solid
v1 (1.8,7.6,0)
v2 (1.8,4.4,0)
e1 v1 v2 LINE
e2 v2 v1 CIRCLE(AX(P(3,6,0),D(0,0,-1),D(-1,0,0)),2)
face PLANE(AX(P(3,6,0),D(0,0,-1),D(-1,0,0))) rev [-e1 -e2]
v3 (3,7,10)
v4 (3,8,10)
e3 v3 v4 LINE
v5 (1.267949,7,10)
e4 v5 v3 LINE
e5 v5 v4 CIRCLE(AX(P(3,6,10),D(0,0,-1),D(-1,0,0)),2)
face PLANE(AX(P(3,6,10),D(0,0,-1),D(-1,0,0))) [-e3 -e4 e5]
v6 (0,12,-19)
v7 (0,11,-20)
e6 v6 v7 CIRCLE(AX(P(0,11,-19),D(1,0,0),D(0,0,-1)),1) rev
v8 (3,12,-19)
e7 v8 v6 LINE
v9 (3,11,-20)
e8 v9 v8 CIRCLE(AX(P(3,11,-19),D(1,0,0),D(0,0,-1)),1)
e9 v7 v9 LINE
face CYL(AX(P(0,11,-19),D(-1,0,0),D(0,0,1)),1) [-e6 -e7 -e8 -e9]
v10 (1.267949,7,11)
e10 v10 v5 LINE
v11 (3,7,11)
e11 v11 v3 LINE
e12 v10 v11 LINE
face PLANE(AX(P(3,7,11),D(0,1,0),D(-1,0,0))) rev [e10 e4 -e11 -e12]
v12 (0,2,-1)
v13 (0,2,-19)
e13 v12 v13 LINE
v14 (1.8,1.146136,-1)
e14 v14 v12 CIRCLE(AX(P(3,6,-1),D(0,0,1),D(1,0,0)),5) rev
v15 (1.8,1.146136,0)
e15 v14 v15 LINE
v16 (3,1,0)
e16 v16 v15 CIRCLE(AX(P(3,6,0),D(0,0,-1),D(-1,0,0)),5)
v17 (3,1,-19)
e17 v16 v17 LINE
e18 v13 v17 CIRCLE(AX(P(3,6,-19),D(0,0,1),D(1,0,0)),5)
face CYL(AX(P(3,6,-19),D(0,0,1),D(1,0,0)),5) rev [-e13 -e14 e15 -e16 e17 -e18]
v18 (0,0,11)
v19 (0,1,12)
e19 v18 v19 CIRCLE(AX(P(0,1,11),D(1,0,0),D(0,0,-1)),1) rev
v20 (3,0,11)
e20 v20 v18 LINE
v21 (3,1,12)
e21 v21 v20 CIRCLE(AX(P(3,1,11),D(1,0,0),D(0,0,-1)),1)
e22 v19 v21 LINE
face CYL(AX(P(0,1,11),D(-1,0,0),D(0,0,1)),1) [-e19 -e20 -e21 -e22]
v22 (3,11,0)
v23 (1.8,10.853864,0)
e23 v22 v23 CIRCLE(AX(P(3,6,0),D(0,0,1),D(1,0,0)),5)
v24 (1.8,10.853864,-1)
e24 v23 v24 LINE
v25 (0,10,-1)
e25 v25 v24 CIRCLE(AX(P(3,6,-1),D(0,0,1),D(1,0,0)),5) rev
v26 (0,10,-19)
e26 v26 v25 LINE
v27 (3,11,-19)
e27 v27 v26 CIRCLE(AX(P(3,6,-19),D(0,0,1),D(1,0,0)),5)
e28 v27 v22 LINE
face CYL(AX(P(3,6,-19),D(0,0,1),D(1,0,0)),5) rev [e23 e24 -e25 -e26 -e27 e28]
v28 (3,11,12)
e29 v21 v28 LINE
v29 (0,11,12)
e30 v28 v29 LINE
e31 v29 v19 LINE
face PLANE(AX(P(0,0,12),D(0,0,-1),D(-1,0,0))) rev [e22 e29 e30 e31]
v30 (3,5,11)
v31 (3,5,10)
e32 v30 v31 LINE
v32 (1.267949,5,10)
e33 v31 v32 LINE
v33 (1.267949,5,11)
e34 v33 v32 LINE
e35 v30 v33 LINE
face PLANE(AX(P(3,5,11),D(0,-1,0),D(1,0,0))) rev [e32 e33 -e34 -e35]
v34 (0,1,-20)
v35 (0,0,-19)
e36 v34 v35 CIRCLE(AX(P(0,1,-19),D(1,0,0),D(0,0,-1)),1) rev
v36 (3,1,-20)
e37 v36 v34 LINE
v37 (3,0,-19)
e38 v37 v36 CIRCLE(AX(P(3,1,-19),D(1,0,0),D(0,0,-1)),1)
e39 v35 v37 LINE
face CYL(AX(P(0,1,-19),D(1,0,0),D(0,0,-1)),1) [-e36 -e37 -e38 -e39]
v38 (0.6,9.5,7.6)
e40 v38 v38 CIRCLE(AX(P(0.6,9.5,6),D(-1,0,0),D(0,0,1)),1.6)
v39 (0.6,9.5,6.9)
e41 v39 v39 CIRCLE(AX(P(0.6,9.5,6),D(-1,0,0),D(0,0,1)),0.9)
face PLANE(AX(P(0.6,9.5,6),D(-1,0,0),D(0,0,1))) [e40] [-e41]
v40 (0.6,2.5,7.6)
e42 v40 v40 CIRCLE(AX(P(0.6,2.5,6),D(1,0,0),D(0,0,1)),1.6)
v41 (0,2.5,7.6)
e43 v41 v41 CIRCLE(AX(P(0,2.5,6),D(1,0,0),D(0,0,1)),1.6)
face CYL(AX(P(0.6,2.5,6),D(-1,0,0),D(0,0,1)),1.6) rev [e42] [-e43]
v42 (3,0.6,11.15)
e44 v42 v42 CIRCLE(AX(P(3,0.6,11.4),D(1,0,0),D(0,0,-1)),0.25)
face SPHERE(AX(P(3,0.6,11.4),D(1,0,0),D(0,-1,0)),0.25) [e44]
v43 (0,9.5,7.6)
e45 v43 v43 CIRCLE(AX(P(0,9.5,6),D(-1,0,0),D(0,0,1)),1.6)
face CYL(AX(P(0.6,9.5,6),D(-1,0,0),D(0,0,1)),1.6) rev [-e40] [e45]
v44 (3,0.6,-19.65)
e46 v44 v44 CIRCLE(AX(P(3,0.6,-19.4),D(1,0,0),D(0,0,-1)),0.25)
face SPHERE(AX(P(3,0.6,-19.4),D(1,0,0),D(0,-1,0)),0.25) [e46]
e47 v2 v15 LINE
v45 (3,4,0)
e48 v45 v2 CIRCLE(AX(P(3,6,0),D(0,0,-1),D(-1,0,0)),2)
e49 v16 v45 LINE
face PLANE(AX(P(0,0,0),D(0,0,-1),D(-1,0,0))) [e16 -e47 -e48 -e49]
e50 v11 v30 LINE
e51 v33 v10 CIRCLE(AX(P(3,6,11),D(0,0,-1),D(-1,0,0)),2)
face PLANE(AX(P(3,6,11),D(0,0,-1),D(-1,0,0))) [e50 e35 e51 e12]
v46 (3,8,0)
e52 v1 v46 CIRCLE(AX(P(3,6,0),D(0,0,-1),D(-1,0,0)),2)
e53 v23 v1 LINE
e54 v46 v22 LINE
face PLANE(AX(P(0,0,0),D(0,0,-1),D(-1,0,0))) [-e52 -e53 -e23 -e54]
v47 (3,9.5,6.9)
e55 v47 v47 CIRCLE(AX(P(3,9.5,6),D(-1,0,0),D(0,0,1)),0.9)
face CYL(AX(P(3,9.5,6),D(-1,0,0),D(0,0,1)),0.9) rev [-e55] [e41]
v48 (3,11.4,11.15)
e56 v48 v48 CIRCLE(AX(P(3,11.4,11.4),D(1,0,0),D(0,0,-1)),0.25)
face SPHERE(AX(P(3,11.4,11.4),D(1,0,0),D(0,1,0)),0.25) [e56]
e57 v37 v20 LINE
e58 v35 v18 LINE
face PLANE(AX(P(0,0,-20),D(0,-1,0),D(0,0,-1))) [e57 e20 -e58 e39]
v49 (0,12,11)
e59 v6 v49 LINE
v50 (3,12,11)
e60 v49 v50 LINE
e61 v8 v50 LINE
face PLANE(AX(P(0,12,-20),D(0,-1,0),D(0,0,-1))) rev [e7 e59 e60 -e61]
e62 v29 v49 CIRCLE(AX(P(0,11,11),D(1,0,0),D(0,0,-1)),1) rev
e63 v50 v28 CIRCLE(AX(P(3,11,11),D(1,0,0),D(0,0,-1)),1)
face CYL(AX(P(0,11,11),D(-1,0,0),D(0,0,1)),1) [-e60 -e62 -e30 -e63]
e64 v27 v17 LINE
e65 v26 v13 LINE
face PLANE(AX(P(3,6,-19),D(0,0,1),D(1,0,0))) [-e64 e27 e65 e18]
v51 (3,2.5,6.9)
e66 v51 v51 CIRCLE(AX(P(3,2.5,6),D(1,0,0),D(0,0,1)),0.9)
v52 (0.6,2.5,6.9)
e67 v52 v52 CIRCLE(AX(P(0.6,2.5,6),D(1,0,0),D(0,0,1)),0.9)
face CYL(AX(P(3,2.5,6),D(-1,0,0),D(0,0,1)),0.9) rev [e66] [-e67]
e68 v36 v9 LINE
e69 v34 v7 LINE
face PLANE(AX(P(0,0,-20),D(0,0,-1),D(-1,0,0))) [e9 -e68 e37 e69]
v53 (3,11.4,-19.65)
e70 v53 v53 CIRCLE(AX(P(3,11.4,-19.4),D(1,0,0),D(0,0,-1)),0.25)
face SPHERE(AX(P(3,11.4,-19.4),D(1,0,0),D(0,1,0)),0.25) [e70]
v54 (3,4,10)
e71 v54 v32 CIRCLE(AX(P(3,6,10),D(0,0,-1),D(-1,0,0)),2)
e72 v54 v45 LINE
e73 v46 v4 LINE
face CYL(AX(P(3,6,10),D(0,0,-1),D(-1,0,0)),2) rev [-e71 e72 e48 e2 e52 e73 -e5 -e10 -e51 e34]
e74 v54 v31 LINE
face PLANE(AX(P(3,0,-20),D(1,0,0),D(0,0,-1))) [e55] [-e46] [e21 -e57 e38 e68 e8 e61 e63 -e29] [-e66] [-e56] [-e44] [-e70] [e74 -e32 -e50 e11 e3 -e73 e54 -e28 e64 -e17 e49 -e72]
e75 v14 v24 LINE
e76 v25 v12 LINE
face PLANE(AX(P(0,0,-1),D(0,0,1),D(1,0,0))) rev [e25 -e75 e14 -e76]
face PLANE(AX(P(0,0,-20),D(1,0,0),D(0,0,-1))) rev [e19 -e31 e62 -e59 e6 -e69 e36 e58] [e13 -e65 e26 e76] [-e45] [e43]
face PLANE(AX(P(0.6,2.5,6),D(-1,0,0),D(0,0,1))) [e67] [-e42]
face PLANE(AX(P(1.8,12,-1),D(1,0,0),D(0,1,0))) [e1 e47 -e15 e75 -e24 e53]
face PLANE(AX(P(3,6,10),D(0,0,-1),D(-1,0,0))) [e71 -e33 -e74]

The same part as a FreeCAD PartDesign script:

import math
import FreeCAD as App
import Part
import Sketcher
from FreeCAD import Vector


def edges_at(feature, points):
    """Names of the edges that pass closest to the given points."""
    edges = feature.Shape.Edges
    near = lambda p: min(range(len(edges)), key=lambda i: edges[i].distToShape(Part.Vertex(*p))[0])
    return sorted({f"Edge{near(p) + 1}" for p in points})


def add_polygon(sketch, points):
    """Adds a closed chain of lines whose ends are joined by coincident constraints."""
    first, n = sketch.GeometryCount, len(points)
    for a, b in zip(points, points[1:] + points[:1]):
        sketch.addGeometry(Part.LineSegment(App.Vector(*a, 0), App.Vector(*b, 0)), False)
    for i in range(n):
        sketch.addConstraint(Sketcher.Constraint("Coincident", first + i, 2, first + (i + 1) % n, 1))

doc = App.newDocument("Part")
params = doc.addObject("Spreadsheet::Sheet", "Params")
for row, (alias, value) in enumerate([
    ("sketch1_width", "3 mm"),
    ("sketch1_height", "12 mm"),
    ("pad1_length", "20 mm"),
    ("sketch2_diameter", "10 mm"),
    ("pocket1_length", "19 mm"),
    ("sketch3_width", "3 mm"),
    ("sketch3_height", "12 mm"),
    ("pad2_length", "12 mm"),
    ("sketch4_height", "12 mm"),
    ("sketch4_width", "1.8 mm"),
    ("pad3_length", "1 mm"),
    ("sketch5_diameter", "4 mm"),
    ("pocket2_length", "10 mm"),
    ("sketch6_radius", "2 mm"),
    ("sketch6_height", "2 mm"),
    ("pocket3_length", "1 mm"),
    ("sketch7_diameter", "3.2 mm"),
    ("pocket4_length", "0.6 mm"),
    ("sketch8_diameter", "1.8 mm"),
    ("fillet_radius", "1 mm"),
    ("sketch9_radius", "0.25 mm"),
    ("revolution_angle", "360 deg"),
    ("sketch10_radius", "0.25 mm"),
    ("revolution2_angle", "360 deg"),
], start=1):
    params.set(f"A{row}", alias)
    params.set(f"B{row}", "=" + value)
    params.setAlias(f"B{row}", alias)

body = doc.addObject("PartDesign::Body", "Body")

# Sketch on XY plane
sketch1 = body.newObject("Sketcher::SketchObject", "Sketch")
sketch1.AttachmentSupport = (doc.getObject("XY_Plane"), [""])
sketch1.MapMode = "FlatFace"
add_polygon(sketch1, [(0, 12), (0, 0), (3, 0), (3, 12)])  # lines 0-3
sketch1.addConstraint(Sketcher.Constraint("Vertical", 0))
sketch1.addConstraint(Sketcher.Constraint("Horizontal", 1))
sketch1.addConstraint(Sketcher.Constraint("Vertical", 2))
sketch1.addConstraint(Sketcher.Constraint("Horizontal", 3))
sketch1.addConstraint(Sketcher.Constraint("Coincident", 0, 2, -1, 1))
sketch1.addConstraint(Sketcher.Constraint("DistanceX", 1, 1, 1, 2, 3.0))
sketch1.addConstraint(Sketcher.Constraint("DistanceY", 0, 2, 0, 1, 12.0))
sketch1.setExpression("Constraints[9]", "Params.sketch1_width")
sketch1.setExpression("Constraints[10]", "Params.sketch1_height")
pad1 = body.newObject("PartDesign::Pad", "Pad")
pad1.Profile = sketch1
pad1.setExpression("Length", "Params.pad1_length")
pad1.Reversed = True

# Sketch on XY plane
sketch2 = body.newObject("Sketcher::SketchObject", "Sketch001")
sketch2.AttachmentSupport = (doc.getObject("XY_Plane"), [""])
sketch2.MapMode = "FlatFace"
sketch2.addGeometry(Part.Circle(Vector(3, 6, 0), Vector(0, 0, 1), 5), False)
sketch2.addConstraint(Sketcher.Constraint("Diameter", 0, 10.0))
sketch2.addConstraint(Sketcher.Constraint("DistanceX", -1, 1, 0, 3, 3.0))
sketch2.addConstraint(Sketcher.Constraint("DistanceY", -1, 1, 0, 3, 6.0))
sketch2.setExpression("Constraints[0]", "Params.sketch2_diameter")
pocket1 = body.newObject("PartDesign::Pocket", "Pocket")
pocket1.Profile = sketch2
pocket1.setExpression("Length", "Params.pocket1_length")

# Sketch on XY plane
sketch3 = body.newObject("Sketcher::SketchObject", "Sketch002")
sketch3.AttachmentSupport = (doc.getObject("XY_Plane"), [""])
sketch3.MapMode = "FlatFace"
add_polygon(sketch3, [(0, 12), (0, 0), (3, 0), (3, 12)])  # lines 0-3
sketch3.addConstraint(Sketcher.Constraint("Vertical", 0))
sketch3.addConstraint(Sketcher.Constraint("Horizontal", 1))
sketch3.addConstraint(Sketcher.Constraint("Vertical", 2))
sketch3.addConstraint(Sketcher.Constraint("Horizontal", 3))
sketch3.addConstraint(Sketcher.Constraint("Coincident", 0, 2, -1, 1))
sketch3.addConstraint(Sketcher.Constraint("DistanceX", 1, 1, 1, 2, 3.0))
sketch3.addConstraint(Sketcher.Constraint("DistanceY", 0, 2, 0, 1, 12.0))
sketch3.setExpression("Constraints[9]", "Params.sketch3_width")
sketch3.setExpression("Constraints[10]", "Params.sketch3_height")
pad2 = body.newObject("PartDesign::Pad", "Pad001")
pad2.Profile = sketch3
pad2.setExpression("Length", "Params.pad2_length")

# Sketch on XY plane
sketch4 = body.newObject("Sketcher::SketchObject", "Sketch003")
sketch4.AttachmentSupport = (doc.getObject("XY_Plane"), [""])
sketch4.MapMode = "FlatFace"
add_polygon(sketch4, [(0, 12), (0, 0), (1.8, 0), (1.8, 12)])  # lines 0-3
sketch4.addConstraint(Sketcher.Constraint("Vertical", 0))
sketch4.addConstraint(Sketcher.Constraint("Horizontal", 1))
sketch4.addConstraint(Sketcher.Constraint("Vertical", 2))
sketch4.addConstraint(Sketcher.Constraint("Horizontal", 3))
sketch4.addConstraint(Sketcher.Constraint("Coincident", 0, 2, -1, 1))
sketch4.addConstraint(Sketcher.Constraint("DistanceY", 0, 2, 0, 1, 12.0))
sketch4.addConstraint(Sketcher.Constraint("DistanceX", 1, 1, 1, 2, 1.8))
sketch4.setExpression("Constraints[9]", "Params.sketch4_height")
sketch4.setExpression("Constraints[10]", "Params.sketch4_width")
pad3 = body.newObject("PartDesign::Pad", "Pad002")
pad3.Profile = sketch4
pad3.setExpression("Length", "Params.pad3_length")
pad3.Reversed = True

# Sketch on XY plane
sketch5 = body.newObject("Sketcher::SketchObject", "Sketch004")
sketch5.AttachmentSupport = (doc.getObject("XY_Plane"), [""])
sketch5.MapMode = "FlatFace"
sketch5.addGeometry(Part.Circle(Vector(3, 6, 0), Vector(0, 0, 1), 2), False)
sketch5.addConstraint(Sketcher.Constraint("Diameter", 0, 4.0))
sketch5.addConstraint(Sketcher.Constraint("DistanceX", -1, 1, 0, 3, 3.0))
sketch5.addConstraint(Sketcher.Constraint("DistanceY", -1, 1, 0, 3, 6.0))
sketch5.setExpression("Constraints[0]", "Params.sketch5_diameter")
pocket2 = body.newObject("PartDesign::Pocket", "Pocket001")
pocket2.Profile = sketch5
pocket2.setExpression("Length", "Params.pocket2_length")
pocket2.Reversed = True

# Sketch on XY plane
sketch6 = body.newObject("Sketcher::SketchObject", "Sketch005")
sketch6.AttachmentSupport = (doc.getObject("XY_Plane"), [""])
sketch6.MapMode = "FlatFace"
sketch6.AttachmentOffset = App.Placement(Vector(0, 0, 10), App.Rotation())
sketch6.addGeometry(Part.LineSegment(Vector(1.3, 7, 0), Vector(3, 7, 0)), False)
sketch6.addGeometry(Part.LineSegment(Vector(3, 7, 0), Vector(3, 5, 0)), False)
sketch6.addGeometry(Part.LineSegment(Vector(3, 5, 0), Vector(1.3, 5, 0)), False)
sketch6.addGeometry(Part.ArcOfCircle(Part.Circle(Vector(3, 6, 0), Vector(0, 0, 1), 2), math.radians(150), math.radians(210)), False)
sketch6.addConstraint(Sketcher.Constraint("Coincident", 0, 2, 1, 1))
sketch6.addConstraint(Sketcher.Constraint("Coincident", 1, 2, 2, 1))
sketch6.addConstraint(Sketcher.Constraint("Coincident", 2, 2, 3, 2))
sketch6.addConstraint(Sketcher.Constraint("Coincident", 3, 1, 0, 1))
sketch6.addConstraint(Sketcher.Constraint("Horizontal", 0))
sketch6.addConstraint(Sketcher.Constraint("Vertical", 1))
sketch6.addConstraint(Sketcher.Constraint("Horizontal", 2))
sketch6.addConstraint(Sketcher.Constraint("Vertical", 3, 3, 0, 2))
sketch6.addConstraint(Sketcher.Constraint("Vertical", 2, 2, 3, 1))
sketch6.addConstraint(Sketcher.Constraint("Radius", 3, 2.0))
sketch6.addConstraint(Sketcher.Constraint("DistanceY", 1, 2, 1, 1, 2.0))
sketch6.addConstraint(Sketcher.Constraint("DistanceX", -1, 1, 3, 3, 3.0))
sketch6.addConstraint(Sketcher.Constraint("DistanceY", -1, 1, 3, 3, 6.0))
sketch6.setExpression("Constraints[9]", "Params.sketch6_radius")
sketch6.setExpression("Constraints[10]", "Params.sketch6_height")
pocket3 = body.newObject("PartDesign::Pocket", "Pocket002")
pocket3.Profile = sketch6
pocket3.setExpression("Length", "Params.pocket3_length")
pocket3.Reversed = True

# Sketch on YZ plane
sketch7 = body.newObject("Sketcher::SketchObject", "Sketch006")
sketch7.AttachmentSupport = (doc.getObject("YZ_Plane"), [""])
sketch7.MapMode = "FlatFace"
sketch7.addGeometry(Part.Circle(Vector(9.5, 6, 0), Vector(0, 0, 1), 1.6), False)
sketch7.addConstraint(Sketcher.Constraint("Diameter", 0, 3.2))
sketch7.addConstraint(Sketcher.Constraint("DistanceY", -1, 1, 0, 3, 6.0))
sketch7.addConstraint(Sketcher.Constraint("DistanceX", -1, 1, 0, 3, 9.5))
sketch7.setExpression("Constraints[0]", "Params.sketch7_diameter")
pocket4 = body.newObject("PartDesign::Pocket", "Pocket003")
pocket4.Profile = sketch7
pocket4.setExpression("Length", "Params.pocket4_length")
pocket4.Reversed = True

# Sketch on YZ plane
sketch8 = body.newObject("Sketcher::SketchObject", "Sketch007")
sketch8.AttachmentSupport = (doc.getObject("YZ_Plane"), [""])
sketch8.MapMode = "FlatFace"
sketch8.AttachmentOffset = App.Placement(Vector(0, 0, 0.6), App.Rotation())
sketch8.addGeometry(Part.Circle(Vector(9.5, 6, 0), Vector(0, 0, 1), 0.9), False)
sketch8.addConstraint(Sketcher.Constraint("Diameter", 0, 1.8))
sketch8.addConstraint(Sketcher.Constraint("DistanceY", -1, 1, 0, 3, 6.0))
sketch8.addConstraint(Sketcher.Constraint("DistanceX", -1, 1, 0, 3, 9.5))
sketch8.setExpression("Constraints[0]", "Params.sketch8_diameter")
pocket5 = body.newObject("PartDesign::Pocket", "Pocket004")
pocket5.Profile = sketch8
pocket5.Type = "ThroughAll"
pocket5.Reversed = True
doc.recompute()

datumplane = body.newObject("PartDesign::Plane", "DatumPlane")
datumplane.AttachmentSupport = (doc.getObject("XZ_Plane"), [""])
datumplane.MapMode = "FlatFace"
datumplane.AttachmentOffset = App.Placement(Vector(0, 0, -6), App.Rotation())
mirrored = body.newObject("PartDesign::Mirrored", "Mirrored")
mirrored.Originals = [pocket4, pocket5]
mirrored.MirrorPlane = (datumplane, [""])
body.Tip = mirrored
doc.recompute()

fillet = body.newObject("PartDesign::Fillet", "Fillet")
fillet.Base = (mirrored, edges_at(mirrored, [
    (1.5, 0, -20),
    (1.5, 12, 12),
    (1.5, 0, 12),
    (1.5, 12, -20),
]))
fillet.setExpression("Radius", "Params.fillet_radius")

# Sketch on XY plane
sketch9 = body.newObject("Sketcher::SketchObject", "Sketch008")
sketch9.AttachmentSupport = (doc.getObject("XY_Plane"), [""])
sketch9.MapMode = "FlatFace"
sketch9.AttachmentOffset = App.Placement(Vector(0, 0, -19.4), App.Rotation())
sketch9.addGeometry(Part.LineSegment(Vector(3, 11.4, 0), Vector(3.25, 11.4, 0)), False)
sketch9.addGeometry(Part.ArcOfCircle(Part.Circle(Vector(3, 11.4, 0), Vector(0, 0, 1), 0.25), math.radians(-90), math.radians(0)), False)
sketch9.addGeometry(Part.LineSegment(Vector(3, 11.15, 0), Vector(3, 11.4, 0)), False)
sketch9.addGeometry(Part.LineSegment(Vector(3.25, 11.4, 0), Vector(3, 11.4, 0)), True)  # axis
sketch9.addConstraint(Sketcher.Constraint("Coincident", 0, 2, 1, 2))
sketch9.addConstraint(Sketcher.Constraint("Coincident", 1, 1, 2, 1))
sketch9.addConstraint(Sketcher.Constraint("Coincident", 2, 2, 0, 1))
sketch9.addConstraint(Sketcher.Constraint("Horizontal", 0))
sketch9.addConstraint(Sketcher.Constraint("Vertical", 2))
sketch9.addConstraint(Sketcher.Constraint("Horizontal", 3))
sketch9.addConstraint(Sketcher.Constraint("Coincident", 2, 2, 1, 3))
sketch9.addConstraint(Sketcher.Constraint("Coincident", 3, 1, 0, 2))
sketch9.addConstraint(Sketcher.Constraint("Vertical", 1, 1, 3, 2))
sketch9.addConstraint(Sketcher.Constraint("Radius", 1, 0.25))
sketch9.addConstraint(Sketcher.Constraint("DistanceX", -1, 1, 1, 3, 3.0))
sketch9.addConstraint(Sketcher.Constraint("DistanceY", -1, 1, 1, 3, 11.4))
sketch9.setExpression("Constraints[9]", "Params.sketch9_radius")
revolution = body.newObject("PartDesign::Revolution", "Revolution")
revolution.Profile = sketch9
revolution.ReferenceAxis = (sketch9, ["Axis0"])
revolution.setExpression("Angle", "Params.revolution_angle")
doc.recompute()

datumplane2 = body.newObject("PartDesign::Plane", "DatumPlane001")
datumplane2.AttachmentSupport = (doc.getObject("XZ_Plane"), [""])
datumplane2.MapMode = "FlatFace"
datumplane2.AttachmentOffset = App.Placement(Vector(0, 0, -6), App.Rotation())
mirrored2 = body.newObject("PartDesign::Mirrored", "Mirrored001")
mirrored2.Originals = [revolution]
mirrored2.MirrorPlane = (datumplane2, [""])
body.Tip = mirrored2
doc.recompute()

datumplane3 = body.newObject("PartDesign::Plane", "DatumPlane002")
datumplane3.AttachmentSupport = (doc.getObject("XY_Plane"), [""])
datumplane3.MapMode = "FlatFace"
datumplane3.AttachmentOffset = App.Placement(Vector(0, 0, -4), App.Rotation())
mirrored3 = body.newObject("PartDesign::Mirrored", "Mirrored002")
mirrored3.Originals = [revolution]
mirrored3.MirrorPlane = (datumplane3, [""])
body.Tip = mirrored3

# Sketch on XY plane
sketch10 = body.newObject("Sketcher::SketchObject", "Sketch009")
sketch10.AttachmentSupport = (doc.getObject("XY_Plane"), [""])
sketch10.MapMode = "FlatFace"
sketch10.AttachmentOffset = App.Placement(Vector(0, 0, 11.4), App.Rotation())
sketch10.addGeometry(Part.LineSegment(Vector(3, 0.6, 0), Vector(3.25, 0.6, 0)), False)
sketch10.addGeometry(Part.ArcOfCircle(Part.Circle(Vector(3, 0.6, 0), Vector(0, 0, 1), 0.25), math.radians(0), math.radians(90)), False)
sketch10.addGeometry(Part.LineSegment(Vector(3, 0.85, 0), Vector(3, 0.6, 0)), False)
sketch10.addGeometry(Part.LineSegment(Vector(3.25, 0.6, 0), Vector(3, 0.6, 0)), True)  # axis
sketch10.addConstraint(Sketcher.Constraint("Coincident", 0, 2, 1, 1))
sketch10.addConstraint(Sketcher.Constraint("Coincident", 1, 2, 2, 1))
sketch10.addConstraint(Sketcher.Constraint("Coincident", 2, 2, 0, 1))
sketch10.addConstraint(Sketcher.Constraint("Horizontal", 0))
sketch10.addConstraint(Sketcher.Constraint("Vertical", 2))
sketch10.addConstraint(Sketcher.Constraint("Horizontal", 3))
sketch10.addConstraint(Sketcher.Constraint("Coincident", 2, 2, 1, 3))
sketch10.addConstraint(Sketcher.Constraint("Coincident", 3, 1, 0, 2))
sketch10.addConstraint(Sketcher.Constraint("Vertical", 1, 2, 3, 2))
sketch10.addConstraint(Sketcher.Constraint("Radius", 1, 0.25))
sketch10.addConstraint(Sketcher.Constraint("DistanceX", -1, 1, 1, 3, 3.0))
sketch10.addConstraint(Sketcher.Constraint("DistanceY", -1, 1, 1, 3, 0.6))
sketch10.setExpression("Constraints[9]", "Params.sketch10_radius")
revolution2 = body.newObject("PartDesign::Revolution", "Revolution001")
revolution2.Profile = sketch10
revolution2.ReferenceAxis = (sketch10, ["Axis0"])
revolution2.setExpression("Angle", "Params.revolution2_angle")

doc.recompute()
